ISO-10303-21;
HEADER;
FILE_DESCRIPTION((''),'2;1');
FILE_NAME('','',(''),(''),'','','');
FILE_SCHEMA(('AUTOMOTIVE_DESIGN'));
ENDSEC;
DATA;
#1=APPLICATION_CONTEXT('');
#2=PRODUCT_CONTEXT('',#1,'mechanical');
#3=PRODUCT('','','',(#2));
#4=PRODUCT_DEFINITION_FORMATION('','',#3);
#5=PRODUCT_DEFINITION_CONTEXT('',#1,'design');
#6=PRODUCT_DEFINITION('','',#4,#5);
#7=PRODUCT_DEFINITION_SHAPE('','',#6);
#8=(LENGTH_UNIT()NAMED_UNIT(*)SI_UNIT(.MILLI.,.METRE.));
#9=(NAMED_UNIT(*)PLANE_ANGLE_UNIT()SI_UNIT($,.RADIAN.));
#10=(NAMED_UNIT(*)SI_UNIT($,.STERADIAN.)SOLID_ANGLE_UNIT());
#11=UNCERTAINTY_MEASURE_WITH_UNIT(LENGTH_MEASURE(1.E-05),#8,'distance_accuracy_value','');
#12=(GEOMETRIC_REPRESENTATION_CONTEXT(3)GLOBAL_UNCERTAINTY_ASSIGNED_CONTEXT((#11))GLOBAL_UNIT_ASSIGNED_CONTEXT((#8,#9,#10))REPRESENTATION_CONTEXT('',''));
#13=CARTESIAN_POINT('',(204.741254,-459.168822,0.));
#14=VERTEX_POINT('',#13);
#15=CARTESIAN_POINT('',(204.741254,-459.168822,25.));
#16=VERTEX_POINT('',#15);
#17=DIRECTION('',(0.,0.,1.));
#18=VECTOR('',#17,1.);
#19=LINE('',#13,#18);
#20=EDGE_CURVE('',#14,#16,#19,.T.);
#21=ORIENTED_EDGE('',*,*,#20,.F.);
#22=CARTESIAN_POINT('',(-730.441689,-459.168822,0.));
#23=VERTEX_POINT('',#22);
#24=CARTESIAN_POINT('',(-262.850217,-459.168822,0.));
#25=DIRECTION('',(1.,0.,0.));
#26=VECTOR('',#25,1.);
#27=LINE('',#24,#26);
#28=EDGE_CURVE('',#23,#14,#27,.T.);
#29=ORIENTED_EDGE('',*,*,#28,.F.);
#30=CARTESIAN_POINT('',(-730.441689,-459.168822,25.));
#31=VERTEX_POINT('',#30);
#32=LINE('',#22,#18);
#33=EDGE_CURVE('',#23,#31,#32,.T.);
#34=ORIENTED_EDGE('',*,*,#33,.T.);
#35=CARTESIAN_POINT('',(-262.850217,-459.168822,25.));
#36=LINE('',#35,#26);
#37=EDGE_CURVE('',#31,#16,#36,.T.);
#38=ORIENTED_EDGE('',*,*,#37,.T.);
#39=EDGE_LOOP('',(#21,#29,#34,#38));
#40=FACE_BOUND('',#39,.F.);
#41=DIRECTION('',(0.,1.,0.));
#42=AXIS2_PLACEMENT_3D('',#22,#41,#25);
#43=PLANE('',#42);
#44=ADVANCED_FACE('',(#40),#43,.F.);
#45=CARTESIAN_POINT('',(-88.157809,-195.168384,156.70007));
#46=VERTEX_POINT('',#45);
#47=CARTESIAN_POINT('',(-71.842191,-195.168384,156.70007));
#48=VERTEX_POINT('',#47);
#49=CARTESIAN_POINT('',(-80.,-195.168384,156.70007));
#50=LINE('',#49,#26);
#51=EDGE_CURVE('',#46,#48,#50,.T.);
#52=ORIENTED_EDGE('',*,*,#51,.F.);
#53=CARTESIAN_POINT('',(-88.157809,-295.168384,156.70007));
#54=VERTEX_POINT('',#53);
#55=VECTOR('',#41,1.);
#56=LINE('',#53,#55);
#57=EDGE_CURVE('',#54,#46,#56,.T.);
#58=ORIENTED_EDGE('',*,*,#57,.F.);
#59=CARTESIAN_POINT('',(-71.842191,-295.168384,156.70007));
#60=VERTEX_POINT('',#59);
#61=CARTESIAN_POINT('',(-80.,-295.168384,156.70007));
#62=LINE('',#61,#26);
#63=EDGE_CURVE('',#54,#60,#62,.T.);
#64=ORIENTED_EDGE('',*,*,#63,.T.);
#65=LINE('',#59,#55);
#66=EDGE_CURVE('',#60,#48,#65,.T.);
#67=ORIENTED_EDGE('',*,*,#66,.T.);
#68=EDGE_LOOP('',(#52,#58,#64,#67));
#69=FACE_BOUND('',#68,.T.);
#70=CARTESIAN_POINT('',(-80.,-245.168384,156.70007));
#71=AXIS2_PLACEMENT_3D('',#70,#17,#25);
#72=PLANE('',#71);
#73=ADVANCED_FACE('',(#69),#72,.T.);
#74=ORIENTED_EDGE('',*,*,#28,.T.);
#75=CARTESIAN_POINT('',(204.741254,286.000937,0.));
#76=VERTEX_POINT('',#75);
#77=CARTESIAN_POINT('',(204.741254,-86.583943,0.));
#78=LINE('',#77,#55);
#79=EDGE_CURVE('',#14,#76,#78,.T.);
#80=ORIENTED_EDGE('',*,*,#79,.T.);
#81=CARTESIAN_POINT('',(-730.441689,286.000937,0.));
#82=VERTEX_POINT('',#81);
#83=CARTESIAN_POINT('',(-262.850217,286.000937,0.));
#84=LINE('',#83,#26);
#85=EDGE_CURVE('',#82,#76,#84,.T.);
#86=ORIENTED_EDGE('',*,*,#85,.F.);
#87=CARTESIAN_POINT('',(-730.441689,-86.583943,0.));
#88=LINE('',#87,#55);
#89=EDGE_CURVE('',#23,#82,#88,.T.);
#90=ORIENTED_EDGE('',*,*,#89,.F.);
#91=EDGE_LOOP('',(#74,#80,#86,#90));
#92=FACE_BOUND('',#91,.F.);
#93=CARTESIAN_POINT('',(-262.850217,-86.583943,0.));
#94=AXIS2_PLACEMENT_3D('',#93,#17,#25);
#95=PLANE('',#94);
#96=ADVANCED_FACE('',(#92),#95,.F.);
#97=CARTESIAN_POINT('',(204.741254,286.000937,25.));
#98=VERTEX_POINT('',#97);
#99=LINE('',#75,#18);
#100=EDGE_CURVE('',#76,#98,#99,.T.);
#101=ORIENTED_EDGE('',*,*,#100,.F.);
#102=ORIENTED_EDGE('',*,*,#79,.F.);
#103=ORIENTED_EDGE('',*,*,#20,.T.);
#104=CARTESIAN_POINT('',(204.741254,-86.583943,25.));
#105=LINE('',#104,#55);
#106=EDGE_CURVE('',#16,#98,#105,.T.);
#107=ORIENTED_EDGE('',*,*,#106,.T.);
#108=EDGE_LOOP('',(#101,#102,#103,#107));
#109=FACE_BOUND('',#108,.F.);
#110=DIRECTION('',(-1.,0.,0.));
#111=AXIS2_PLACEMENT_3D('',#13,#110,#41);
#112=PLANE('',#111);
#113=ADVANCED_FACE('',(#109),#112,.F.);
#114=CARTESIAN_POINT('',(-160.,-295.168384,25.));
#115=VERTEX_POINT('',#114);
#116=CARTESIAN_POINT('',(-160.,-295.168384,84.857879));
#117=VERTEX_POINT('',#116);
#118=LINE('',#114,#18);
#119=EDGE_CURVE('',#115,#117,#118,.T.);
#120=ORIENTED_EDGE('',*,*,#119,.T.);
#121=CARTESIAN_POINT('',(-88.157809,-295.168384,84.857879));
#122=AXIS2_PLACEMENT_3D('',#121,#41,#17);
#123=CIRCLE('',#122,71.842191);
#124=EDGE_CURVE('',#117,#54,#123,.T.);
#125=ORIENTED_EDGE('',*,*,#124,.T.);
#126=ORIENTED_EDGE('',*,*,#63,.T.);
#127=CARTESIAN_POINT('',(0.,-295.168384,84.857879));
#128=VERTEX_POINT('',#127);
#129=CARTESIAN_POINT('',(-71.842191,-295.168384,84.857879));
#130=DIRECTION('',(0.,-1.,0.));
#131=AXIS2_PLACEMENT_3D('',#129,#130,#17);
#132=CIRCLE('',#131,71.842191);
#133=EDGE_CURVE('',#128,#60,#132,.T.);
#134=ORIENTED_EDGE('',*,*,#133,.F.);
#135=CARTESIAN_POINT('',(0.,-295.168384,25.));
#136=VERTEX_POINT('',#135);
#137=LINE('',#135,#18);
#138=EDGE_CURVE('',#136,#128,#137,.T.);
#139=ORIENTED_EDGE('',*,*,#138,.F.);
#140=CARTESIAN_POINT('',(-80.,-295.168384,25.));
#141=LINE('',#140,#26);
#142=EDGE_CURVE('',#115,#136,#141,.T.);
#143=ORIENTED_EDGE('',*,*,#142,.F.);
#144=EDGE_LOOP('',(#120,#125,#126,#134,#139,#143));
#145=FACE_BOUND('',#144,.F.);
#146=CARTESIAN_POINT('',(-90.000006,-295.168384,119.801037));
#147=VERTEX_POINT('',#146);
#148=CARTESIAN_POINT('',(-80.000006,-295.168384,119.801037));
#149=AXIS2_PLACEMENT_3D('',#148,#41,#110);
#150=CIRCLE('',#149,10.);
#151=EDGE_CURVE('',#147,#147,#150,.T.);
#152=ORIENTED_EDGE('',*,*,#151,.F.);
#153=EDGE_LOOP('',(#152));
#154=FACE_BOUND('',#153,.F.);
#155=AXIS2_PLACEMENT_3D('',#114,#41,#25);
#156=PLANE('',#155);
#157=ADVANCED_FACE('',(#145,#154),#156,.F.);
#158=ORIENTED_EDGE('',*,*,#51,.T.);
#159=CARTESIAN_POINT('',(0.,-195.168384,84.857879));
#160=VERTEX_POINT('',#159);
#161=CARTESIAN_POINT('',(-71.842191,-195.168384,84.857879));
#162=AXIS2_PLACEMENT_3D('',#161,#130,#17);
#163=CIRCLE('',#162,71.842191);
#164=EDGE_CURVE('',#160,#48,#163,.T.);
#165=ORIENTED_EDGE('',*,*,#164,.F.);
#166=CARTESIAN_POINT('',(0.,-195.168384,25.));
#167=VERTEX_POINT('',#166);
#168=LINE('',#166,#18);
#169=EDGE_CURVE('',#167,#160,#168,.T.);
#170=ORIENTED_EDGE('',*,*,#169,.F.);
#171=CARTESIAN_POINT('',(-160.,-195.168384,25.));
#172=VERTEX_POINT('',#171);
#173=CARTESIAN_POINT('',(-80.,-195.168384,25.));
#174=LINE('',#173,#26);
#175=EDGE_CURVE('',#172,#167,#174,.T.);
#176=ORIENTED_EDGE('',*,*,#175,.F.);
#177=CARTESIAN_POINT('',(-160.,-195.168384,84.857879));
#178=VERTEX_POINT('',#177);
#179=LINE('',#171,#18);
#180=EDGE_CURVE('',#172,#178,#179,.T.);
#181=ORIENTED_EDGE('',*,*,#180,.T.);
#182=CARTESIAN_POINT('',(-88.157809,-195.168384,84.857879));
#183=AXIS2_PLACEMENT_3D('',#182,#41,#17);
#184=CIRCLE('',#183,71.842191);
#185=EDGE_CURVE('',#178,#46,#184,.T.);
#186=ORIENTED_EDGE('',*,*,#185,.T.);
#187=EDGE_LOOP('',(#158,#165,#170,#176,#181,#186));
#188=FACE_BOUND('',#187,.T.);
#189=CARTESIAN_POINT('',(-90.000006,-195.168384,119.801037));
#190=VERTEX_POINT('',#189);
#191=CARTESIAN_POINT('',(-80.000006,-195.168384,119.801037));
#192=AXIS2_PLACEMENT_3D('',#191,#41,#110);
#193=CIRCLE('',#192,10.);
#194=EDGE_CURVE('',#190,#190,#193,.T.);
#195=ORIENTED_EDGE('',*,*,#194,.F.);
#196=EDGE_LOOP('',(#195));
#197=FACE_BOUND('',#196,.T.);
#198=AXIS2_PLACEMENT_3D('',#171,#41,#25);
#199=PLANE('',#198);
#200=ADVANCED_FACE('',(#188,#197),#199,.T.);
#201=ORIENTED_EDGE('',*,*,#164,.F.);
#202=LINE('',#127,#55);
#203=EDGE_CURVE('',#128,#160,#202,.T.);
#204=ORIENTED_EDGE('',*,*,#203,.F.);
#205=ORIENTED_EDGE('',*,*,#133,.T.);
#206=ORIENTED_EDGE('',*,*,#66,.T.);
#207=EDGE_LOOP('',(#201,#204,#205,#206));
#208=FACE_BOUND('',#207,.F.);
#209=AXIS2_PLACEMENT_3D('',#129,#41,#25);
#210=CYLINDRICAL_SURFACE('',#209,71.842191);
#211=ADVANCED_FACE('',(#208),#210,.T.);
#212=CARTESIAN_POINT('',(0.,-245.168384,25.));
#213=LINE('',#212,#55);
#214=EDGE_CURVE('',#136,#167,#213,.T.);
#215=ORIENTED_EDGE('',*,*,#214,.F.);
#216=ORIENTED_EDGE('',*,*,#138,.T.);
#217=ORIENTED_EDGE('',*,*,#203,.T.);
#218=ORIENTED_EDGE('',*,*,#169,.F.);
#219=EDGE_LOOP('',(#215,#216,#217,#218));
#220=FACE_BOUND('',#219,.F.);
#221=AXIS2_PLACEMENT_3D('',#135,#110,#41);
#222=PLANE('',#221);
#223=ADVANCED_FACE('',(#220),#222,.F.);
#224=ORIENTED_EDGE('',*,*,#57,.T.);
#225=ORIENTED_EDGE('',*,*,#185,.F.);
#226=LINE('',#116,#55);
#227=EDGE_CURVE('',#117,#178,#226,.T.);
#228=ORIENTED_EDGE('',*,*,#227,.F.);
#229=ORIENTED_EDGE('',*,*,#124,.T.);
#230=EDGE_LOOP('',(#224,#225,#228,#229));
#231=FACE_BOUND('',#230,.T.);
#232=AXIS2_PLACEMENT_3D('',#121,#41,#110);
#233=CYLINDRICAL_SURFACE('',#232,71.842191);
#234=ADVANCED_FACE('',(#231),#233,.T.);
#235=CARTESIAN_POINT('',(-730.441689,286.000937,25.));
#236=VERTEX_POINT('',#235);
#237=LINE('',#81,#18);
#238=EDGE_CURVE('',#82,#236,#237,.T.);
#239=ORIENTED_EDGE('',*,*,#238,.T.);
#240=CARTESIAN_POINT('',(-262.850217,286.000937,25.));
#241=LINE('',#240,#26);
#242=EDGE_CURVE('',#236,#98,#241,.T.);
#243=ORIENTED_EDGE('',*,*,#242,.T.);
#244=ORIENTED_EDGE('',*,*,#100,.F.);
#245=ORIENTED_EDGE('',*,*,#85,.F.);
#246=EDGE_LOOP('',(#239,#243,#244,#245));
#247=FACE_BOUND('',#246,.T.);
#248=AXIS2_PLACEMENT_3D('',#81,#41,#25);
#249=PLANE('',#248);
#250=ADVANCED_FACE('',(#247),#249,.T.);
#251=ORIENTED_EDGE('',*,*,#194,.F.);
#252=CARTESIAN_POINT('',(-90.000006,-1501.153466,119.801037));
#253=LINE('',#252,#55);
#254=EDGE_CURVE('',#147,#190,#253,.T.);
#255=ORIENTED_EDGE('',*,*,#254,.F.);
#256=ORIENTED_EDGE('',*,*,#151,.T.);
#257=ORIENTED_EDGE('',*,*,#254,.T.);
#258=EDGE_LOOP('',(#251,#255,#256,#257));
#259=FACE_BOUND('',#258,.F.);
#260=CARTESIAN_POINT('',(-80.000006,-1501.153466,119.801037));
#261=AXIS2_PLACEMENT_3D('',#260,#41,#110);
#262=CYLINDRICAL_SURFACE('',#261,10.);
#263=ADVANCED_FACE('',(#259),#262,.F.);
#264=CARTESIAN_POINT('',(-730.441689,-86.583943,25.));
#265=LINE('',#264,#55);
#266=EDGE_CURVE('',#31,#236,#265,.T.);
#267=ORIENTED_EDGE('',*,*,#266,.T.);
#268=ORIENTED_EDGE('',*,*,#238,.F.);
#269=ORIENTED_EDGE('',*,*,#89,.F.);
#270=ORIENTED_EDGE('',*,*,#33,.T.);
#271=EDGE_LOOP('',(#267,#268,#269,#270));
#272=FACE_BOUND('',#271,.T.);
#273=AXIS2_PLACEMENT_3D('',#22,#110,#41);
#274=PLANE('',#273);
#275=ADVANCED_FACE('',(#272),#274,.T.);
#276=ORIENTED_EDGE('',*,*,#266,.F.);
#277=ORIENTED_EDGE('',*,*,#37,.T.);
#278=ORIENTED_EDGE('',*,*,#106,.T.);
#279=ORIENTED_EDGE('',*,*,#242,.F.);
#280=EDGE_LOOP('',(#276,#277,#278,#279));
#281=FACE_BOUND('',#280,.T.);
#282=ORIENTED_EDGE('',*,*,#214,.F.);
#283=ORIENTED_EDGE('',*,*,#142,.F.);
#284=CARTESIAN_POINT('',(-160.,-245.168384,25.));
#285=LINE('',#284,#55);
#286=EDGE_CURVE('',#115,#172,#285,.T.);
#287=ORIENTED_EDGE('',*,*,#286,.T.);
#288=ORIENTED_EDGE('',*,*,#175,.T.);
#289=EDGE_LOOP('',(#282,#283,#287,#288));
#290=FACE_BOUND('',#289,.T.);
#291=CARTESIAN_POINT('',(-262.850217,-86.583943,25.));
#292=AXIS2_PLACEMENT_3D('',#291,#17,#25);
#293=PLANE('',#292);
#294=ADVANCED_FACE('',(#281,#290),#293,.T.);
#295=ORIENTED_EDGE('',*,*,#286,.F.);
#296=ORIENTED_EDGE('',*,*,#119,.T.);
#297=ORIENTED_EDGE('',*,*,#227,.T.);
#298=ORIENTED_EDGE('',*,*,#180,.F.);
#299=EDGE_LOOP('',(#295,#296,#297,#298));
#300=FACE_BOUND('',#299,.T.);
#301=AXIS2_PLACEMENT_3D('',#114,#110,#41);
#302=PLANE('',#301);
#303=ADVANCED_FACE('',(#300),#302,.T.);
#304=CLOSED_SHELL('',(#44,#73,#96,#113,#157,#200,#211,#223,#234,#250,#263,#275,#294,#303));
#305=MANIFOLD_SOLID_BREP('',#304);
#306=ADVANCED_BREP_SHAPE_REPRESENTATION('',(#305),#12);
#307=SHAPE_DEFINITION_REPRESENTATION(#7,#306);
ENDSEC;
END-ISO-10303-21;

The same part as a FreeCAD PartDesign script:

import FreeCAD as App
import Part
import Sketcher


def edges_at(feature, points):
    """Names of the edges that pass closest to the given points."""
    edges = feature.Shape.Edges
    near = lambda p: min(range(len(edges)), key=lambda i: edges[i].distToShape(Part.Vertex(*p))[0])
    return sorted({f"Edge{near(p) + 1}" for p in points})


def add_polygon(sketch, points):
    """Adds a closed chain of lines whose ends are joined by coincident constraints."""
    first, n = sketch.GeometryCount, len(points)
    for a, b in zip(points, points[1:] + points[:1]):
        sketch.addGeometry(Part.LineSegment(App.Vector(*a, 0), App.Vector(*b, 0)), False)
    for i in range(n):
        sketch.addConstraint(Sketcher.Constraint("Coincident", first + i, 2, first + (i + 1) % n, 1))

doc = App.newDocument("Part")
params = doc.addObject("Spreadsheet::Sheet", "Params")
for row, (alias, value) in enumerate([
    ("pad1_length", "25 mm"),
    ("sketch2_width", "160 mm"),
    ("sketch2_height", "100 mm"),
    ("pad2_length", "131.70007 mm"),
    ("sketch3_diameter", "20 mm"),
    ("hole_diameter", "20 mm"),
    ("fillet_radius", "71.842191 mm"),
], start=1):
    params.set(f"A{row}", alias)
    params.set(f"B{row}", "=" + value)
    params.setAlias(f"B{row}", alias)

body = doc.addObject("PartDesign::Body", "Body")

sketch1 = body.newObject("Sketcher::SketchObject", "Sketch")
sketch1.AttachmentSupport = (doc.getObject("XY_Plane"), [""])
sketch1.MapMode = "FlatFace"
add_polygon(sketch1, [(-730, 286), (-730, -459), (205, -459), (205, 286)])
sketch1.addConstraint(Sketcher.Constraint("Vertical", 0))
sketch1.addConstraint(Sketcher.Constraint("Horizontal", 1))
sketch1.addConstraint(Sketcher.Constraint("Vertical", 2))
sketch1.addConstraint(Sketcher.Constraint("Horizontal", 3))
sketch1.addConstraint(Sketcher.Constraint("DistanceY", 0, 2, 0, 1, 745.169759))
sketch1.addConstraint(Sketcher.Constraint("DistanceX", 1, 1, 1, 2, 935.182943))
sketch1.addConstraint(Sketcher.Constraint("DistanceX", 0, 2, -1, 1, 730.441689))
sketch1.addConstraint(Sketcher.Constraint("DistanceY", 0, 2, -1, 1, 459.168822))
pad1 = body.newObject("PartDesign::Pad", "Pad")
pad1.Profile = sketch1
pad1.setExpression("Length", "Params.pad1_length")

sketch2 = body.newObject("Sketcher::SketchObject", "Sketch001")
sketch2.AttachmentSupport = (doc.getObject("XY_Plane"), [""])
sketch2.MapMode = "FlatFace"
sketch2.AttachmentOffset = App.Placement(App.Vector(0, 0, 25), App.Rotation())
add_polygon(sketch2, [(-160, -195), (-160, -295), (0, -295), (0, -195)])
sketch2.addConstraint(Sketcher.Constraint("Vertical", 0))
sketch2.addConstraint(Sketcher.Constraint("Horizontal", 1))
sketch2.addConstraint(Sketcher.Constraint("Vertical", 2))
sketch2.addConstraint(Sketcher.Constraint("Horizontal", 3))
sketch2.addConstraint(Sketcher.Constraint("PointOnObject", 1, 2, -2))
sketch2.addConstraint(Sketcher.Constraint("DistanceX", 1, 1, 1, 2, 160.0))
sketch2.addConstraint(Sketcher.Constraint("DistanceY", 0, 2, 0, 1, 100.0))
sketch2.addConstraint(Sketcher.Constraint("DistanceY", 0, 2, -1, 1, 295.168384))
sketch2.setExpression("Constraints[9]", "Params.sketch2_width")
sketch2.setExpression("Constraints[10]", "Params.sketch2_height")
pad2 = body.newObject("PartDesign::Pad", "Pad001")
pad2.Profile = sketch2
pad2.setExpression("Length", "Params.pad2_length")

sketch3 = body.newObject("Sketcher::SketchObject", "Sketch002")
sketch3.AttachmentSupport = (doc.getObject("XZ_Plane"), [""])
sketch3.MapMode = "FlatFace"
sketch3.AttachmentOffset = App.Placement(App.Vector(0, 0, 295.168384), App.Rotation())
sketch3.addGeometry(Part.Circle(App.Vector(-80, 120, 0), App.Vector(0, 0, 1), 10), False)
sketch3.addConstraint(Sketcher.Constraint("Diameter", 0, 20.0))
sketch3.addConstraint(Sketcher.Constraint("DistanceX", 0, 3, -1, 1, 80.000006))
sketch3.addConstraint(Sketcher.Constraint("DistanceY", -1, 1, 0, 3, 119.801037))
sketch3.setExpression("Constraints[0]", "Params.sketch3_diameter")
doc.recompute()
hole = body.newObject("PartDesign::Hole", "Hole")
hole.Profile = sketch3
hole.ThreadType = "None"
hole.setExpression("Diameter", "Params.hole_diameter")
hole.DepthType = "ThroughAll"
doc.recompute()

fillet = body.newObject("PartDesign::Fillet", "Fillet")
fillet.Base = (hole, edges_at(hole, [(0, -245.168, 156.7), (-160, -245.168, 156.7)]))
fillet.setExpression("Radius", "Params.fillet_radius")

doc.recompute()
